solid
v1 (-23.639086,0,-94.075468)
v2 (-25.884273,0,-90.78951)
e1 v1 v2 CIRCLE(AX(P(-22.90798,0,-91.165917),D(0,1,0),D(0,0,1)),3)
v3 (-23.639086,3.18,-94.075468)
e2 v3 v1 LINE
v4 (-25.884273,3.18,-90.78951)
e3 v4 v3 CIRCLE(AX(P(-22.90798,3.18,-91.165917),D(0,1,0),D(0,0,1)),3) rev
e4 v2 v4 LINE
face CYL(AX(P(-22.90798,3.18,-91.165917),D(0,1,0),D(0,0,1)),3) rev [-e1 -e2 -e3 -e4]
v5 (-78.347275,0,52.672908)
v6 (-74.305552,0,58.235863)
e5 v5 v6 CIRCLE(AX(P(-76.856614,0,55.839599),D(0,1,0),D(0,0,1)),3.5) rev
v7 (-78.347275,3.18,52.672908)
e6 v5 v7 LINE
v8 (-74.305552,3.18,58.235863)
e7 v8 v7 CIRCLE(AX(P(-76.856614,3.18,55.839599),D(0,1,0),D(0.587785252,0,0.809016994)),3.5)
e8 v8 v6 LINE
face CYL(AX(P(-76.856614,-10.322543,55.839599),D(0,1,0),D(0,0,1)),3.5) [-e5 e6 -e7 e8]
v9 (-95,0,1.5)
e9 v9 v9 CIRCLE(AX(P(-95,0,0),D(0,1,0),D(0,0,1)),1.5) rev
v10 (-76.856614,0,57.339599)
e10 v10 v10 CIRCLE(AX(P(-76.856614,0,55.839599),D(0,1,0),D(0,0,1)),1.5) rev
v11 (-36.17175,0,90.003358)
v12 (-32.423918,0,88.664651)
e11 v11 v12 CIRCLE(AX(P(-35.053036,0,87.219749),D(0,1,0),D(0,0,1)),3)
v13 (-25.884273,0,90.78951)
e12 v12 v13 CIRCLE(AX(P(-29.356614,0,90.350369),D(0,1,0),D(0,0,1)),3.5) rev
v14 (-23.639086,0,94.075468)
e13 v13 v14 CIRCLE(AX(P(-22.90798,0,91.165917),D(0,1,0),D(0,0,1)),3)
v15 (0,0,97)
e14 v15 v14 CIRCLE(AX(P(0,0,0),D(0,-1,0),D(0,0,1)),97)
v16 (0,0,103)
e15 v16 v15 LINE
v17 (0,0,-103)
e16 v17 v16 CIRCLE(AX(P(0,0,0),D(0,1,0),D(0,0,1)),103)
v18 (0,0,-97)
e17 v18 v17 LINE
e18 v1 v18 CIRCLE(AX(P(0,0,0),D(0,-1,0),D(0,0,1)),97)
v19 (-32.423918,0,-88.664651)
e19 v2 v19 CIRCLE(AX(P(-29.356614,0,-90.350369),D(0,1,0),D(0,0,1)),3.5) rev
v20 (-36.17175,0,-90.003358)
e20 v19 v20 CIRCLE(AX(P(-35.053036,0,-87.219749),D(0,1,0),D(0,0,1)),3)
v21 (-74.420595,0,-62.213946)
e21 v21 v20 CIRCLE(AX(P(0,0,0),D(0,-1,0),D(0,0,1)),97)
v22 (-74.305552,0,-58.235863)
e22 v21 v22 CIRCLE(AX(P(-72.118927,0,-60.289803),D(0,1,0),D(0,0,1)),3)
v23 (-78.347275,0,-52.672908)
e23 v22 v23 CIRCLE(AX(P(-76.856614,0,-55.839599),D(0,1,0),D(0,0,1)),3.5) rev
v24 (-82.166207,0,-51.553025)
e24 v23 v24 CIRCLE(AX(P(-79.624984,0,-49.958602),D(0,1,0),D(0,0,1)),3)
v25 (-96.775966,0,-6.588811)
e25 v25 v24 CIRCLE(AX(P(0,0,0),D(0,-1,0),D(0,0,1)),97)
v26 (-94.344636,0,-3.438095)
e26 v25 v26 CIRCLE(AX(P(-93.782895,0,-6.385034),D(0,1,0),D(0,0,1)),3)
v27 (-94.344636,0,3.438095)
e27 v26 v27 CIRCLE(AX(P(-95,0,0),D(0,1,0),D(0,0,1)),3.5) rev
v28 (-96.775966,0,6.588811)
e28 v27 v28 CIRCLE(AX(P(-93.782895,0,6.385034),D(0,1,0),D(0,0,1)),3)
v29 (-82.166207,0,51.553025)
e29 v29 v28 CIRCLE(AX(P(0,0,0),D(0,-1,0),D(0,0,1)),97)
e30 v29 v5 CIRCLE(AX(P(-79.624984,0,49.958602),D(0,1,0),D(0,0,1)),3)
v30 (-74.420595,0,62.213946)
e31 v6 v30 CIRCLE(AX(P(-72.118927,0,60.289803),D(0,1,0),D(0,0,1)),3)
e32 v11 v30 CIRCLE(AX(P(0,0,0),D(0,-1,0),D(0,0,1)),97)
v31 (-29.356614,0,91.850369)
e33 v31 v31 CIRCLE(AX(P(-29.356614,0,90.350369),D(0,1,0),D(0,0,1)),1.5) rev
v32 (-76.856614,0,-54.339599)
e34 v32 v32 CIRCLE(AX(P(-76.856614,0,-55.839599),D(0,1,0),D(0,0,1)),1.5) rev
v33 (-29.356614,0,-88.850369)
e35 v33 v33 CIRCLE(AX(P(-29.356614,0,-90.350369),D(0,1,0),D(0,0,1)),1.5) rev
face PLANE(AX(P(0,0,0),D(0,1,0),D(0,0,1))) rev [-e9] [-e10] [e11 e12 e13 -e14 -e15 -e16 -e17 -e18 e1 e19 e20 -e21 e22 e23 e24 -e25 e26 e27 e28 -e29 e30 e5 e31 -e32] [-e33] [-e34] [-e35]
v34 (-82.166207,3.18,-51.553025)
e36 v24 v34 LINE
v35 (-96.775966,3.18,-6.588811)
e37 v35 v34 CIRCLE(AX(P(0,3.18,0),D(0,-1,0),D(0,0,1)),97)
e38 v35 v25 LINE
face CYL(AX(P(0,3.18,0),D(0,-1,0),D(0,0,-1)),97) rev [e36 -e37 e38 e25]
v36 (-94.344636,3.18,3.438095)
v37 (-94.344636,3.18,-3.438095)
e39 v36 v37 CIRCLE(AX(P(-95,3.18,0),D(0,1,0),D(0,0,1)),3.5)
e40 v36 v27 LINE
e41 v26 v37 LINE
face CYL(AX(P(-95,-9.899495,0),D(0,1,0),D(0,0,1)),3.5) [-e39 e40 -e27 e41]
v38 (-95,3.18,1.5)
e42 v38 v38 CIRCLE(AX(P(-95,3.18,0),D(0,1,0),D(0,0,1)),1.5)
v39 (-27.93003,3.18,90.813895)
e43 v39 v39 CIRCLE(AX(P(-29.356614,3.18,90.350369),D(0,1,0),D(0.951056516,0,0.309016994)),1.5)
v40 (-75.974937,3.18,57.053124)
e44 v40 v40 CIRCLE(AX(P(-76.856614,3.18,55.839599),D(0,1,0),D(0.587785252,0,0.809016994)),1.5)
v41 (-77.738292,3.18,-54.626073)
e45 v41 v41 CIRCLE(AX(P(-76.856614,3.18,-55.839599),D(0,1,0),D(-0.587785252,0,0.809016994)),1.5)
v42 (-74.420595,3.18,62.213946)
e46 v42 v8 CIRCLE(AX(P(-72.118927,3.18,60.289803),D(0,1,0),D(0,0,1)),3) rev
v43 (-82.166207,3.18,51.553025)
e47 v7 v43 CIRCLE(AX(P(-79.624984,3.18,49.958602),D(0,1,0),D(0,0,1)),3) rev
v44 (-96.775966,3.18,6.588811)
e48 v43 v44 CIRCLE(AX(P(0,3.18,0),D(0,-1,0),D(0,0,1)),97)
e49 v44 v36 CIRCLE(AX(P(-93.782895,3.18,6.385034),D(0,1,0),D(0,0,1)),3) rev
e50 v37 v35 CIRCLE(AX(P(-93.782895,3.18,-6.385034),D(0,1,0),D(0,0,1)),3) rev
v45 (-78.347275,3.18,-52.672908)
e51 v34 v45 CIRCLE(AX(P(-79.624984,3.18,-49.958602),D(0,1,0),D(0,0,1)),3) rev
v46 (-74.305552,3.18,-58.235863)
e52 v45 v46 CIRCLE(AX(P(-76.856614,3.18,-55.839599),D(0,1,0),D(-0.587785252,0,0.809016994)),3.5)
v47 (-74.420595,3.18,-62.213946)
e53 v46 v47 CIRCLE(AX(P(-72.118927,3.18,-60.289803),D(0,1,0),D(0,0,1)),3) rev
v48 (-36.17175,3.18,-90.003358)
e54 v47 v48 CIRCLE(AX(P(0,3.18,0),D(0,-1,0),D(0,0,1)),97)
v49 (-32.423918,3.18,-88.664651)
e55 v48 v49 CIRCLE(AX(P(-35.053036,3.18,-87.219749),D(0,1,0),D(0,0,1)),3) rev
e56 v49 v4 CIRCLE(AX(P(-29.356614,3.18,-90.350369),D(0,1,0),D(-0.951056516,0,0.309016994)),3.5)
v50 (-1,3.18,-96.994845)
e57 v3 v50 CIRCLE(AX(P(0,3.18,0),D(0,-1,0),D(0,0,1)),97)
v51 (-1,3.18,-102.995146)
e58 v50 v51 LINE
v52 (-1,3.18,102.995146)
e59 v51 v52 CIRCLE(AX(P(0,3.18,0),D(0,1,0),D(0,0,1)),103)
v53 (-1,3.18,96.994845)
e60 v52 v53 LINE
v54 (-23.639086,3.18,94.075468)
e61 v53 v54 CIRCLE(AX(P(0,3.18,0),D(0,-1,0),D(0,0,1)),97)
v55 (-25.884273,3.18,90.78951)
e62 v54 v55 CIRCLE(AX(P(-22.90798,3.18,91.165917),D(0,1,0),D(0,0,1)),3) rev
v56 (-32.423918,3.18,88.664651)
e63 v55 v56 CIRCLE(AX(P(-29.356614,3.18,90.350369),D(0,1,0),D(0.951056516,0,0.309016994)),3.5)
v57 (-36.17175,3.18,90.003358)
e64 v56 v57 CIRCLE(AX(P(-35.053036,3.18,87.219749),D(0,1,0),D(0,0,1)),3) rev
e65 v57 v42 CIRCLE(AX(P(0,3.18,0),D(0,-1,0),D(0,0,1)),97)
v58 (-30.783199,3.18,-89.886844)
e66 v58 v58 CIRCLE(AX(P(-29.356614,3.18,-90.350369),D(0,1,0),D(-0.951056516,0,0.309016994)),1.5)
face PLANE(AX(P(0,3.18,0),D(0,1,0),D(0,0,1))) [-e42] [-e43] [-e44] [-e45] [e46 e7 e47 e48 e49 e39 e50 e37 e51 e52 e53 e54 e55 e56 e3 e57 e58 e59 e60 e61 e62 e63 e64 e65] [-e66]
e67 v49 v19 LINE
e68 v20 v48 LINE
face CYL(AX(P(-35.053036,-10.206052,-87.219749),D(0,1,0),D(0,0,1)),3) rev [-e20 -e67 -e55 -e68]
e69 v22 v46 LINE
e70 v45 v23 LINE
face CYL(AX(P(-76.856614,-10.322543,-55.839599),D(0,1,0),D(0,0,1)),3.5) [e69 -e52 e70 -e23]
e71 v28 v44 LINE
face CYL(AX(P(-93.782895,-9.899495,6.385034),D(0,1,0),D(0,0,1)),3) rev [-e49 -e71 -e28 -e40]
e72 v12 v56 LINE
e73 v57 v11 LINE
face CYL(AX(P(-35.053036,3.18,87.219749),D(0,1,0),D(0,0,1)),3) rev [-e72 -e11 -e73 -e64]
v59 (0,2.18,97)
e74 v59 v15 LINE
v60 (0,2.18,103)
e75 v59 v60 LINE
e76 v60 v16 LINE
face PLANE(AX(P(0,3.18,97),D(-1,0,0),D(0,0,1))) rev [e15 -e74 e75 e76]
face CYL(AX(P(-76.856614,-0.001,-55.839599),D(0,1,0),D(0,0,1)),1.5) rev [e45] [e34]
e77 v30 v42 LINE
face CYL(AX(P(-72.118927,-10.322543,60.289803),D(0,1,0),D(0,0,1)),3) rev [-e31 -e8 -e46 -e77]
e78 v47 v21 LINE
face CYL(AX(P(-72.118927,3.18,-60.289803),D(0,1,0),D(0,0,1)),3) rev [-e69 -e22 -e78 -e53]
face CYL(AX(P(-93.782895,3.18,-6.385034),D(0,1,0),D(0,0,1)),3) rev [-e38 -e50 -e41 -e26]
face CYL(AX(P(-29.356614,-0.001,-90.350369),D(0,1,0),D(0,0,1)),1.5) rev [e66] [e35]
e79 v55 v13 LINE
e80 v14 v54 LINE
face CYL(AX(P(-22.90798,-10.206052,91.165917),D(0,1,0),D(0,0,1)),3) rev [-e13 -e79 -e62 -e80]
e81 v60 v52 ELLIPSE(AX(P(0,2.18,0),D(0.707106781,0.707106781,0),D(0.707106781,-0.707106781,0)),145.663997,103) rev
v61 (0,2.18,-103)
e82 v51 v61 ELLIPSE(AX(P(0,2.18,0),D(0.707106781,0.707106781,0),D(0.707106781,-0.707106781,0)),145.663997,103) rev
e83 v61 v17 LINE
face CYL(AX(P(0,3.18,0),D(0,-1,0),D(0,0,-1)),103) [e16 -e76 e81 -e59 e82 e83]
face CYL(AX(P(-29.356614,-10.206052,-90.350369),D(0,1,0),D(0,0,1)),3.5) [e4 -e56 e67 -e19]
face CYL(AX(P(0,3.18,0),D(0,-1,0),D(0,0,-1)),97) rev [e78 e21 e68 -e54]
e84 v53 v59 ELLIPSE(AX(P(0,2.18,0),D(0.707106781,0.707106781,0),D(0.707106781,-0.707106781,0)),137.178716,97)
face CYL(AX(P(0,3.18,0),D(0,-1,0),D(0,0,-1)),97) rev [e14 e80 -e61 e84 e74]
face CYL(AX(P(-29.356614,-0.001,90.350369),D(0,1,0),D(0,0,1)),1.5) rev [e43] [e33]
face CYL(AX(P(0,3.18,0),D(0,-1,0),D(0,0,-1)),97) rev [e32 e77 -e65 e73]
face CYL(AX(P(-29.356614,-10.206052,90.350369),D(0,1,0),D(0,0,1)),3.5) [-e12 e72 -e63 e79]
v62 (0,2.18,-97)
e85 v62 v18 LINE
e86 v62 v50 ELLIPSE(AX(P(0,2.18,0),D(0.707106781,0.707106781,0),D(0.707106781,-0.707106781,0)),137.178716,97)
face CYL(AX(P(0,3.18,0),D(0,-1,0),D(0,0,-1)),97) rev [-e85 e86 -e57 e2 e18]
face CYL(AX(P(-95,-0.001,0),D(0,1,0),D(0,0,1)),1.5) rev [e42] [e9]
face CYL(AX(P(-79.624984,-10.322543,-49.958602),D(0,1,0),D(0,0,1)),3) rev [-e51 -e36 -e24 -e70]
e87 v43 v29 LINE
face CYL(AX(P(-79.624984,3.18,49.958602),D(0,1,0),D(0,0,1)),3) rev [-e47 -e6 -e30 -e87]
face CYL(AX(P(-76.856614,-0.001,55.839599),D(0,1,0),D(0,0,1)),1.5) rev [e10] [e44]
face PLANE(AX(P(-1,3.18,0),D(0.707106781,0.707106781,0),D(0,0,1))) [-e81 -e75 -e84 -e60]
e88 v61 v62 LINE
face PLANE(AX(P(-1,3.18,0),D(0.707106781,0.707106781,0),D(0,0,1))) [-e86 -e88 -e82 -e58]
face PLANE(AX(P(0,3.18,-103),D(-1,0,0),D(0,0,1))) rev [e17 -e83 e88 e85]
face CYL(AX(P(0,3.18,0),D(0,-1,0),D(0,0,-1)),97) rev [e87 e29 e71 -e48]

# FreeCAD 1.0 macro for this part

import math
import FreeCAD as App
import Part
import Sketcher
Q = App.Units.Quantity


def edges_at(feature, points):
    """Names of the edges that pass closest to the given points."""
    edges = feature.Shape.Edges
    near = lambda p: min(range(len(edges)), key=lambda i: edges[i].distToShape(Part.Vertex(*p))[0])
    return sorted({f"Edge{near(p) + 1}" for p in points})

doc = App.newDocument("Part")
body = doc.addObject("PartDesign::Body", "Body")

# Sketch on XZ plane
sketch1 = body.newObject("Sketcher::SketchObject", "Sketch")
sketch1.AttachmentSupport = (doc.getObject("XZ_Plane"), [""])
sketch1.MapMode = "FlatFace"
sketch1.addGeometry(Part.LineSegment(App.Vector(0, -97, 0), App.Vector(0, -103, 0)), False)
sketch1.addGeometry(Part.ArcOfCircle(Part.Circle(App.Vector(0, 0, 0), App.Vector(0, 0, 1), 103), math.radians(90), math.radians(270)), False)
sketch1.addGeometry(Part.LineSegment(App.Vector(0, 103, 0), App.Vector(0, 97, 0)), False)
sketch1.addGeometry(Part.ArcOfCircle(Part.Circle(App.Vector(0, 0, 0), App.Vector(0, 0, 1), 97), math.radians(90), math.radians(270)), False)
sketch1.addConstraint(Sketcher.Constraint("Coincident", 0, 2, 1, 2))
sketch1.addConstraint(Sketcher.Constraint("Coincident", 1, 1, 2, 1))
sketch1.addConstraint(Sketcher.Constraint("Coincident", 2, 2, 3, 1))
sketch1.addConstraint(Sketcher.Constraint("Coincident", 3, 2, 0, 1))
sketch1.addConstraint(Sketcher.Constraint("Vertical", 0))
sketch1.addConstraint(Sketcher.Constraint("Vertical", 2))
sketch1.addConstraint(Sketcher.Constraint("Coincident", 1, 3, -1, 1))
sketch1.addConstraint(Sketcher.Constraint("Coincident", 3, 3, -1, 1))
sketch1.addConstraint(Sketcher.Constraint("PointOnObject", 0, 2, -2))
sketch1.addConstraint(Sketcher.Constraint("PointOnObject", 1, 1, -2))
sketch1.addConstraint(Sketcher.Constraint("Radius", 1, Q("103 mm")))
sketch1.addConstraint(Sketcher.Constraint("Radius", 3, Q("97 mm")))
pad1 = body.newObject("PartDesign::Pad", "Pad")
pad1.Profile = sketch1
pad1.Length = 3.18
pad1.Reversed = True

# Sketch on XZ plane
sketch2 = body.newObject("Sketcher::SketchObject", "Sketch001")
sketch2.AttachmentSupport = (doc.getObject("XZ_Plane"), [""])
sketch2.MapMode = "FlatFace"
sketch2.AttachmentOffset = App.Placement(App.Vector(0, 0, -3.18), App.Rotation())
sketch2.addGeometry(Part.ArcOfCircle(Part.Circle(App.Vector(-95, 0, 0), App.Vector(0, 0, 1), 3.5), math.radians(148), math.radians(212)), False)
sketch2.addGeometry(Part.LineSegment(App.Vector(-98, 1.9, 0), App.Vector(-96.9, 3.5, 0)), False)
sketch2.addGeometry(Part.LineSegment(App.Vector(-96.9, 3.5, 0), App.Vector(-95, 3.5, 0)), False)
sketch2.addGeometry(Part.ArcOfCircle(Part.Circle(App.Vector(-95, 0, 0), App.Vector(0, 0, 1), 3.5), math.radians(0), math.radians(90)), False)
sketch2.addGeometry(Part.ArcOfCircle(Part.Circle(App.Vector(-95, 0, 0), App.Vector(0, 0, 1), 3.5), math.radians(-90), math.radians(0)), False)
sketch2.addGeometry(Part.LineSegment(App.Vector(-95, -3.5, 0), App.Vector(-96.9, -3.5, 0)), False)
sketch2.addGeometry(Part.LineSegment(App.Vector(-96.9, -3.5, 0), App.Vector(-98, -1.9, 0)), False)
sketch2.addConstraint(Sketcher.Constraint("Tangent", 0, 1, 1, 1))
sketch2.addConstraint(Sketcher.Constraint("Coincident", 1, 2, 2, 1))
sketch2.addConstraint(Sketcher.Constraint("Tangent", 2, 2, 3, 2))
sketch2.addConstraint(Sketcher.Constraint("Tangent", 3, 1, 4, 2))
sketch2.addConstraint(Sketcher.Constraint("Tangent", 4, 1, 5, 1))
sketch2.addConstraint(Sketcher.Constraint("Coincident", 5, 2, 6, 1))
sketch2.addConstraint(Sketcher.Constraint("Tangent", 6, 2, 0, 2))
sketch2.addConstraint(Sketcher.Constraint("Horizontal", 2))
sketch2.addConstraint(Sketcher.Constraint("Horizontal", 5))
sketch2.addConstraint(Sketcher.Constraint("Coincident", 3, 3, 0, 3))
sketch2.addConstraint(Sketcher.Constraint("Equal", 0, 3))
sketch2.addConstraint(Sketcher.Constraint("Equal", 3, 4))
sketch2.addConstraint(Sketcher.Constraint("Symmetric", 1, 2, 5, 2, -1))
sketch2.addConstraint(Sketcher.Constraint("PointOnObject", 3, 1, -1))
sketch2.addConstraint(Sketcher.Constraint("Radius", 0, Q("3.5 mm")))
sketch2.addConstraint(Sketcher.Constraint("DistanceX", 0, 3, -1, 1, Q("95 mm")))
sketch2.addConstraint(Sketcher.Constraint("DistanceX", 2, 1, 2, 2, Q("1.936835 mm")))
pad2 = body.newObject("PartDesign::Pad", "Pad001")
pad2.Profile = sketch2
pad2.Length = 3.18
doc.recompute()

fillet = body.newObject("PartDesign::Fillet", "Fillet")
fillet.Base = (pad2, edges_at(pad2, [(-96.937, 1.59, -3.5), (-96.937, 1.59, 3.5)]))
fillet.Radius = 3

# Sketch on XZ plane
sketch3 = body.newObject("Sketcher::SketchObject", "Sketch002")
sketch3.AttachmentSupport = (doc.getObject("XZ_Plane"), [""])
sketch3.MapMode = "FlatFace"
sketch3.AttachmentOffset = App.Placement(App.Vector(0, 0, -3.18), App.Rotation())
sketch3.addGeometry(Part.Circle(App.Vector(-95, 0, 0), App.Vector(0, 0, 1), 1.5), False)
sketch3.addConstraint(Sketcher.Constraint("PointOnObject", 0, 3, -1))
sketch3.addConstraint(Sketcher.Constraint("Diameter", 0, Q("3 mm")))
sketch3.addConstraint(Sketcher.Constraint("DistanceX", 0, 3, -1, 1, Q("95 mm")))
pocket1 = body.newObject("PartDesign::Pocket", "Pocket")
pocket1.Profile = sketch3
pocket1.Length = 3.18
pocket1.Reversed = True
doc.recompute()

polarpattern = body.newObject("PartDesign::PolarPattern", "PolarPattern")
polarpattern.Originals = [pad2, pocket1]
polarpattern.Axis = (doc.getObject("Y_Axis"), [""])
polarpattern.Angle = 72
polarpattern.Occurrences = 3
polarpattern.Reversed = True
body.Tip = polarpattern
doc.recompute()

fillet2 = body.newObject("PartDesign::Fillet", "Fillet001")
fillet2.Base = (polarpattern, edges_at(polarpattern, [
    (-76.366, 1.59, -59.81),
    (-80.481, 1.59, -54.146),
    (-26.626, 1.59, -93.274),
    (-33.284, 1.59, -91.111),
]))
fillet2.Radius = 3
doc.recompute()

polarpattern2 = body.newObject("PartDesign::PolarPattern", "PolarPattern001")
polarpattern2.Originals = [pad2, pocket1]
polarpattern2.Axis = (doc.getObject("Y_Axis"), [""])
polarpattern2.Angle = 72
polarpattern2.Occurrences = 3
body.Tip = polarpattern2
doc.recompute()

fillet3 = body.newObject("PartDesign::Fillet", "Fillet002")
fillet3.Base = (polarpattern2, edges_at(polarpattern2, [
    (-80.481, 1.59, 54.146),
    (-76.366, 1.59, 59.81),
    (-33.284, 1.59, 91.111),
    (-26.626, 1.59, 93.274),
]))
fillet3.Radius = 3
doc.recompute()

chamfer = body.newObject("PartDesign::Chamfer", "Chamfer")
chamfer.Base = (fillet3, edges_at(fillet3, [(0, 3.18, -100), (0, 3.18, 100)]))
chamfer.Size = 1

doc.recompute()
